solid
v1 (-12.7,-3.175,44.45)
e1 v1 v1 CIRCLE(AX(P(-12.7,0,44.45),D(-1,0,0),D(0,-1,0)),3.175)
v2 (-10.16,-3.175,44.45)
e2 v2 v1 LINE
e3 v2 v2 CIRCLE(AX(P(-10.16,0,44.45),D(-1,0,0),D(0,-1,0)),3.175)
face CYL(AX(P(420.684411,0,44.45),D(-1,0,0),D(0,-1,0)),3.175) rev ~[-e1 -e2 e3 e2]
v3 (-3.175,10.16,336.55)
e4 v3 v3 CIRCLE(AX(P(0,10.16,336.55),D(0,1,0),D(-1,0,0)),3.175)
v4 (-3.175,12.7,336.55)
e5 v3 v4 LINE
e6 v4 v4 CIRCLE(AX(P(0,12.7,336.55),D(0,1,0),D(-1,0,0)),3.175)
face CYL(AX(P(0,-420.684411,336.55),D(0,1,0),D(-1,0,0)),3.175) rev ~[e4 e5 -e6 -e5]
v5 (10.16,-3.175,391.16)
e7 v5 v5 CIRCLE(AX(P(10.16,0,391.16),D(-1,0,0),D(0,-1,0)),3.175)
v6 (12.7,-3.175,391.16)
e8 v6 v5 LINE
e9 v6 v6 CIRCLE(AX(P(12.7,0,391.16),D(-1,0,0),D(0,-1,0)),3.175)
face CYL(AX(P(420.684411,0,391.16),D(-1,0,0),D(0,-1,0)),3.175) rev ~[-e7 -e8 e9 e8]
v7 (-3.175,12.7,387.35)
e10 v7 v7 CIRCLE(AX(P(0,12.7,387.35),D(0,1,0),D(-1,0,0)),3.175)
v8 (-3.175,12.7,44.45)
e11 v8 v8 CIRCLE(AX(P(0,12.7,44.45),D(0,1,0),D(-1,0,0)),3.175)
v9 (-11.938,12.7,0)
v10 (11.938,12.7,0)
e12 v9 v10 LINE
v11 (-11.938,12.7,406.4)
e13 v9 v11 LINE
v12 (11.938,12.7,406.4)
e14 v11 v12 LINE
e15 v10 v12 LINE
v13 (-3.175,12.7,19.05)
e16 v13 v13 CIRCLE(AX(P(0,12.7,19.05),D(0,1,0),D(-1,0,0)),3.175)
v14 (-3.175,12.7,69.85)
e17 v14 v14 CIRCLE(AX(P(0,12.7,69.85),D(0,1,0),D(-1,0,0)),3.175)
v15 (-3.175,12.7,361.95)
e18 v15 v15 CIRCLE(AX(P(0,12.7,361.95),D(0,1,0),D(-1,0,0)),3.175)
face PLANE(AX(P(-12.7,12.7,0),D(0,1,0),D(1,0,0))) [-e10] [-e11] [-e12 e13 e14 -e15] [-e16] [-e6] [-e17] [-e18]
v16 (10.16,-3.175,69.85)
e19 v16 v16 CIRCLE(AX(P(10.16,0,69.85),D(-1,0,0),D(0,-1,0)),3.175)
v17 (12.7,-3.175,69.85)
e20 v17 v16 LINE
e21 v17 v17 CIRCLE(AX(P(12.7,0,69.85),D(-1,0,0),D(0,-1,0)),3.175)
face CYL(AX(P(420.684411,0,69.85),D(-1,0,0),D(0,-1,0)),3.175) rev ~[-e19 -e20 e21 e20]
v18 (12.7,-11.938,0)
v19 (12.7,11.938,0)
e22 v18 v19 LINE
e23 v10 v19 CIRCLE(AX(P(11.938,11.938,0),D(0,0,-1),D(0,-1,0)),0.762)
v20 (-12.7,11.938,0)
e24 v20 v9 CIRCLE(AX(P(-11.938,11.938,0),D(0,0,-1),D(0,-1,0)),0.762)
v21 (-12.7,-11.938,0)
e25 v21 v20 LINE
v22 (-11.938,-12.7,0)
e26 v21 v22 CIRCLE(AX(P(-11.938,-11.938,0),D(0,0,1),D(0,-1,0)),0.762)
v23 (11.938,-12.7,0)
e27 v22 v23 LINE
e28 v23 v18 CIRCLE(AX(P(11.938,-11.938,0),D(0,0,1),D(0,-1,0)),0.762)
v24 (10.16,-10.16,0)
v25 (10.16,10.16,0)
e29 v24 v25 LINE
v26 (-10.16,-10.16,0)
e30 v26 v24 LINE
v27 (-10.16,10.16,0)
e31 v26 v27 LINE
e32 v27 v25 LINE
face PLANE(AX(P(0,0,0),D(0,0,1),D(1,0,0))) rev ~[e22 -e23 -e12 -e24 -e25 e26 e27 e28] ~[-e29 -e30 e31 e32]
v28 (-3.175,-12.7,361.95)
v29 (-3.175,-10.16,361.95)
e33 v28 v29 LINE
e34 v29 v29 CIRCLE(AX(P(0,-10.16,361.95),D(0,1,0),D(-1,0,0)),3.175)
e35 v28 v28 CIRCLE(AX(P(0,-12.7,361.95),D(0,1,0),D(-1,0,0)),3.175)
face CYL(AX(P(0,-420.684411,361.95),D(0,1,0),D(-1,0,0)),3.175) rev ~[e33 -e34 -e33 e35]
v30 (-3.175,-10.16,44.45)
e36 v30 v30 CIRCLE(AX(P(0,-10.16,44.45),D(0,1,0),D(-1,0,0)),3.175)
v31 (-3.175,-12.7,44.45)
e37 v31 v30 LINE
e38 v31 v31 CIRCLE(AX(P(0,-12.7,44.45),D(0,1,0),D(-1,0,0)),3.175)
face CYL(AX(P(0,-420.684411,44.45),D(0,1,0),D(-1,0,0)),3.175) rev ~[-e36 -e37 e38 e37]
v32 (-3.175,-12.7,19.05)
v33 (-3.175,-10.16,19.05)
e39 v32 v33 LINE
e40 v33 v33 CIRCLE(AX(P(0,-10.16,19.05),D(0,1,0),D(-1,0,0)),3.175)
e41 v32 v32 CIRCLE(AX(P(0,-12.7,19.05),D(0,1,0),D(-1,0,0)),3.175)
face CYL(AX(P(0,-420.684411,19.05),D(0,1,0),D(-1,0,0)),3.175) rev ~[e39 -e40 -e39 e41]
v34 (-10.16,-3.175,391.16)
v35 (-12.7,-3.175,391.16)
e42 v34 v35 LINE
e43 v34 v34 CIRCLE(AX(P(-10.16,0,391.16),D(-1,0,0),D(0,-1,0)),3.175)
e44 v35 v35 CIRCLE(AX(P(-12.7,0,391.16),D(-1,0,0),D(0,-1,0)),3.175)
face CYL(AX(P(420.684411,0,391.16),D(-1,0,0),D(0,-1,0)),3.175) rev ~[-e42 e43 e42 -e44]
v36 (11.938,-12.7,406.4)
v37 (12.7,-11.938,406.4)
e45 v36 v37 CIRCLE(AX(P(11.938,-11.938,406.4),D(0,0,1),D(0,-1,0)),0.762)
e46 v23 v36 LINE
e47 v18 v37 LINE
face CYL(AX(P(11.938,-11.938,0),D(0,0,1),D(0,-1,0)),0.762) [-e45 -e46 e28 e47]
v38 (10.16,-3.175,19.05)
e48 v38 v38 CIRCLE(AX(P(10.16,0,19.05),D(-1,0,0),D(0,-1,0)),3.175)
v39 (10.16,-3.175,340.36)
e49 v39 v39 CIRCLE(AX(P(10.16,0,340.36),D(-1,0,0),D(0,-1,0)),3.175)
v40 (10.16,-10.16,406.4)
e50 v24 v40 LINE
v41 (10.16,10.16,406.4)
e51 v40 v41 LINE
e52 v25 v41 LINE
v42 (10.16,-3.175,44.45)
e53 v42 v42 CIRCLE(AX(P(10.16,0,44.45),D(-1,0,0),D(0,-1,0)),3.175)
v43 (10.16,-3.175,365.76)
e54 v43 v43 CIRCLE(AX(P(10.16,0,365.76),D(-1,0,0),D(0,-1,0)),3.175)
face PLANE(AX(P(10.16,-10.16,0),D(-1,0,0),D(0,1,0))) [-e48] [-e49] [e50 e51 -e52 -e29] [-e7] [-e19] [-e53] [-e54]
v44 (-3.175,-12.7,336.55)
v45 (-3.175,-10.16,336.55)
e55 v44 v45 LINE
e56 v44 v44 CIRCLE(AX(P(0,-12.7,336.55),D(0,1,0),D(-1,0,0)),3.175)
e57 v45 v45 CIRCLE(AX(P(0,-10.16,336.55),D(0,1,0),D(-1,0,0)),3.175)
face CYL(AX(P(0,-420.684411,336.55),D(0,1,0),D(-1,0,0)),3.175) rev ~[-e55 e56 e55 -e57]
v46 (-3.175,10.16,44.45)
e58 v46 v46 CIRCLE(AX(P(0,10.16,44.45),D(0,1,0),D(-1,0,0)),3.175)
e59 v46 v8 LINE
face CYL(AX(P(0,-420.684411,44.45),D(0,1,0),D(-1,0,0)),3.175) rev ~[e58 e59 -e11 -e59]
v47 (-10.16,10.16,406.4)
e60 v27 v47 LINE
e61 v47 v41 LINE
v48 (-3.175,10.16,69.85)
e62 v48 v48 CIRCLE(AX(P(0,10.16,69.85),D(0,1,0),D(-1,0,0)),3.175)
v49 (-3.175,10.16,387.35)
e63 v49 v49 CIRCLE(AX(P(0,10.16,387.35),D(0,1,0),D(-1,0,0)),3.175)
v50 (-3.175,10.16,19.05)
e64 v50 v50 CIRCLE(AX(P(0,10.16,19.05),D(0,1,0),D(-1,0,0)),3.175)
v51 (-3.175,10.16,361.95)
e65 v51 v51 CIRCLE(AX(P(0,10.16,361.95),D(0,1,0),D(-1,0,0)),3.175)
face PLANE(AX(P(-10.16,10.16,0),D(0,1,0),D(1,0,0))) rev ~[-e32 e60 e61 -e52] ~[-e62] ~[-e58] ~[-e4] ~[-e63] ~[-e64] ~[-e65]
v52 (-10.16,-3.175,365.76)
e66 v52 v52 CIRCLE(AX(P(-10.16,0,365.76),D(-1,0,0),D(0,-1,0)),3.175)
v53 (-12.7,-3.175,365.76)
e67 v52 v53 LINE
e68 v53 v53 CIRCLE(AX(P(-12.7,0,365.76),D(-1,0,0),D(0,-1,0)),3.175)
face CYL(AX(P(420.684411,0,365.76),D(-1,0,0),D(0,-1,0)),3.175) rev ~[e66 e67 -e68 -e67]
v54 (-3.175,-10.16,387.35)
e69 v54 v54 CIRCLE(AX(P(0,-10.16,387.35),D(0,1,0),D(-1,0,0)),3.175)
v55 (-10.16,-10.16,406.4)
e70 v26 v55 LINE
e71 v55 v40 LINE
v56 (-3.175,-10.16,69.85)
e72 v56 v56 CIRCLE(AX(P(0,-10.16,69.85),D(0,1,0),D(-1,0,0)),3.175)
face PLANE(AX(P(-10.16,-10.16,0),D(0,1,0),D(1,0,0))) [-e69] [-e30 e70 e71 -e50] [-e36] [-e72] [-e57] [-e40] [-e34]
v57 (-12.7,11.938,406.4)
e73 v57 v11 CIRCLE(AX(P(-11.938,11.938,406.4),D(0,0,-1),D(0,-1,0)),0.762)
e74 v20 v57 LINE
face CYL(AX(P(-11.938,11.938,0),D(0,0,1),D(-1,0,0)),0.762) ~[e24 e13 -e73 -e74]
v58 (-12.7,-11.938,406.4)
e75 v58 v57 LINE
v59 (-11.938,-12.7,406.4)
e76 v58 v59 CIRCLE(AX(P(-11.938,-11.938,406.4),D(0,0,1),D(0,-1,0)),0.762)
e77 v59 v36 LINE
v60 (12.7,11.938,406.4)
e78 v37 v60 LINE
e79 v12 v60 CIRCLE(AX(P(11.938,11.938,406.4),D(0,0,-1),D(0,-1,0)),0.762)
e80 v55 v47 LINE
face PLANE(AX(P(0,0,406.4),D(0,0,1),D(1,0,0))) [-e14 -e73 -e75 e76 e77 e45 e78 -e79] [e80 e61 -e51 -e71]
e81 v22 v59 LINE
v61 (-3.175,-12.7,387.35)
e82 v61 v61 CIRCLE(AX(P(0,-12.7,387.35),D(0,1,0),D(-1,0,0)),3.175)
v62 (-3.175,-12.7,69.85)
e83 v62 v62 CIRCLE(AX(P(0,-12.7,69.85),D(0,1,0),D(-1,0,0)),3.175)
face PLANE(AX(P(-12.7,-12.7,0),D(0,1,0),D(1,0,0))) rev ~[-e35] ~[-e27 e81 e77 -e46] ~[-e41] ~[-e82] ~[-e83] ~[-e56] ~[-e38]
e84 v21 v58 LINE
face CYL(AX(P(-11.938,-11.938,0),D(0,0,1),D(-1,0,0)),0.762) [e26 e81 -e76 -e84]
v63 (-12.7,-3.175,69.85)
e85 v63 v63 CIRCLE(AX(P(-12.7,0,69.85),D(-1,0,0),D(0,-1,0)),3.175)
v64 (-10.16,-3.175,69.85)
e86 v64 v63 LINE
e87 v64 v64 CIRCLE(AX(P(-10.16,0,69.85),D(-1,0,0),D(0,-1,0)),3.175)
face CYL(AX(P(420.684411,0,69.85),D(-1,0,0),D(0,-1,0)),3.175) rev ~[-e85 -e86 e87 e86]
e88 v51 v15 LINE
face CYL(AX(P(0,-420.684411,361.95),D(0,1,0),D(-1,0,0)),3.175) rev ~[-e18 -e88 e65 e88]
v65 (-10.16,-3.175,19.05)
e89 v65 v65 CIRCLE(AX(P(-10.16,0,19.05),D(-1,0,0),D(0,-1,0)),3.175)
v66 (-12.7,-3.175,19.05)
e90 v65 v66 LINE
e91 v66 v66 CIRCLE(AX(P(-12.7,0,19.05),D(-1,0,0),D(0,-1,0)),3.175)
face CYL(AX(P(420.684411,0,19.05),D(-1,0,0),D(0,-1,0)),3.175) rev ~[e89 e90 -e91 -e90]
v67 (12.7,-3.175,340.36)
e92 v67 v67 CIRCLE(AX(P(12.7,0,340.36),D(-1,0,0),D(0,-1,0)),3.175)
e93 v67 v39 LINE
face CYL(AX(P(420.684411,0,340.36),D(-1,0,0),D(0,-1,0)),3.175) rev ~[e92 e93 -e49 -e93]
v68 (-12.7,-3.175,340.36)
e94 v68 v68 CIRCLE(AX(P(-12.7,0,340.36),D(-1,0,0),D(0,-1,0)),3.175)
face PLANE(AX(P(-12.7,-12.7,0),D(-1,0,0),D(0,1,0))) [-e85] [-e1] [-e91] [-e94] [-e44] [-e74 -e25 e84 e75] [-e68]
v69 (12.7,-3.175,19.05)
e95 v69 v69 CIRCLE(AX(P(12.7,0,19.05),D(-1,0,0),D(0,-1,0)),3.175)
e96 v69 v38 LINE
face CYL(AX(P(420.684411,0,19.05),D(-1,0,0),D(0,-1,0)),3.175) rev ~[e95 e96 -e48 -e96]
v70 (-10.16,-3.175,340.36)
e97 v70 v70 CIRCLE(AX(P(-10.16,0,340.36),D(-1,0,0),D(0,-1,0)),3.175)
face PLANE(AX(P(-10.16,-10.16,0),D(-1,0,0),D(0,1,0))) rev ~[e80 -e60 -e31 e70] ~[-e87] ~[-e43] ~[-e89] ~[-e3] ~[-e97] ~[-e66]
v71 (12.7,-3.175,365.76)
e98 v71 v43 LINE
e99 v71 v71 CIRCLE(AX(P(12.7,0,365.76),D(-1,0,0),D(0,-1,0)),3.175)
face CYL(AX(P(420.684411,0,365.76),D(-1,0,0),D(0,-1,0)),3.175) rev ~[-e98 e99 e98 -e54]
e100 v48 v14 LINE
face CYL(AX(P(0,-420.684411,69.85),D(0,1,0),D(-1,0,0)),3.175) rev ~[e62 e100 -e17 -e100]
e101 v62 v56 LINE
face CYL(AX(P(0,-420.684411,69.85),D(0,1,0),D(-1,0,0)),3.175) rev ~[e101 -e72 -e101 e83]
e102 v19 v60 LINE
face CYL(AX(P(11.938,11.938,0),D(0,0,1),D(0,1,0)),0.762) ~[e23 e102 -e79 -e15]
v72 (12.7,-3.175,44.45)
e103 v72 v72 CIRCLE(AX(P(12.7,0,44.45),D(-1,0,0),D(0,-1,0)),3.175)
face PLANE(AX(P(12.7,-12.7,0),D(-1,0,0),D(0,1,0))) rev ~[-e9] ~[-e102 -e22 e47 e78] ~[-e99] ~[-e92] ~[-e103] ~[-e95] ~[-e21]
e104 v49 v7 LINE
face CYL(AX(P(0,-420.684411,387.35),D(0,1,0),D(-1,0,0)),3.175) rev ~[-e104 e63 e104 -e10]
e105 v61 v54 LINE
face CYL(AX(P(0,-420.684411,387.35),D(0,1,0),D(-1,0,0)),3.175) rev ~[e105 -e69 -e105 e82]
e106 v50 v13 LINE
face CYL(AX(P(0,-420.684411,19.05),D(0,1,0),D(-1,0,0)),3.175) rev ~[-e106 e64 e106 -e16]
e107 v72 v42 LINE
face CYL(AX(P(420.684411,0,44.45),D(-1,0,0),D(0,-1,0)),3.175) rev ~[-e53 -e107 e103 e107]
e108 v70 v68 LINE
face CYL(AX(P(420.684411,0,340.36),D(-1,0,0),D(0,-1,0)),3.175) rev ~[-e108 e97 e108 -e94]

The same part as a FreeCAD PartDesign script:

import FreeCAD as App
import Part
import Sketcher
Q = App.Units.Quantity


def edges_at(feature, points):
    """Names of the edges that pass closest to the given points."""
    edges = feature.Shape.Edges
    near = lambda p: min(range(len(edges)), key=lambda i: edges[i].distToShape(Part.Vertex(*p))[0])
    return sorted({f"Edge{near(p) + 1}" for p in points})


def add_polygon(sketch, points):
    """Adds a closed chain of lines whose ends are joined by coincident constraints."""
    first, n = sketch.GeometryCount, len(points)
    for a, b in zip(points, points[1:] + points[:1]):
        sketch.addGeometry(Part.LineSegment(App.Vector(*a, 0), App.Vector(*b, 0)), False)
    for i in range(n):
        sketch.addConstraint(Sketcher.Constraint("Coincident", first + i, 2, first + (i + 1) % n, 1))

doc = App.newDocument("Part")
body = doc.addObject("PartDesign::Body", "Body")

# Sketch on XY plane
sketch1 = body.newObject("Sketcher::SketchObject", "Sketch")
sketch1.AttachmentSupport = (doc.getObject("XY_Plane"), [""])
sketch1.MapMode = "FlatFace"
add_polygon(sketch1, [(-13, 13), (-13, -13), (13, -13), (13, 13)])  # lines 0-3
add_polygon(sketch1, [(10, -10), (-10, -10), (-10, 10), (10, 10)])  # lines 4-7
sketch1.addConstraint(Sketcher.Constraint("Vertical", 0))
sketch1.addConstraint(Sketcher.Constraint("Horizontal", 1))
sketch1.addConstraint(Sketcher.Constraint("Vertical", 2))
sketch1.addConstraint(Sketcher.Constraint("Horizontal", 3))
sketch1.addConstraint(Sketcher.Constraint("Horizontal", 4))
sketch1.addConstraint(Sketcher.Constraint("Vertical", 5))
sketch1.addConstraint(Sketcher.Constraint("Horizontal", 6))
sketch1.addConstraint(Sketcher.Constraint("Vertical", 7))
sketch1.addConstraint(Sketcher.Constraint("Symmetric", 0, 2, 2, 2, -1, 1))
sketch1.addConstraint(Sketcher.Constraint("Symmetric", 4, 2, 6, 2, -1, 1))
sketch1.addConstraint(Sketcher.Constraint("Equal", 3, 0))
sketch1.addConstraint(Sketcher.Constraint("Equal", 6, 5))
sketch1.addConstraint(Sketcher.Constraint("DistanceX", 1, 1, 1, 2, Q("1 in")))
sketch1.addConstraint(Sketcher.Constraint("DistanceX", 4, 2, 4, 1, Q("0.8 in")))
pad1 = body.newObject("PartDesign::Pad", "Pad")
pad1.Profile = sketch1
pad1.Length = Q("16 in")
doc.recompute()

fillet = body.newObject("PartDesign::Fillet", "Fillet")
fillet.Base = (pad1, edges_at(pad1, [
    (12.7, 12.7, 203.2),
    (-12.7, 12.7, 203.2),
    (-12.7, -12.7, 203.2),
    (12.7, -12.7, 203.2),
]))
fillet.Radius = Q("0.03 in")

# Sketch on YZ plane
sketch2 = body.newObject("Sketcher::SketchObject", "Sketch001")
sketch2.AttachmentSupport = (doc.getObject("YZ_Plane"), [""])
sketch2.MapMode = "FlatFace"
sketch2.AttachmentOffset = App.Placement(App.Vector(0, 0, 0.5 * 25.4), App.Rotation())
sketch2.addGeometry(Part.Circle(App.Vector(0, 391.2, 0), App.Vector(0, 0, 1), 3.2), False)
sketch2.addGeometry(Part.Circle(App.Vector(0, 365.8, 0), App.Vector(0, 0, 1), 3.2), False)
sketch2.addGeometry(Part.Circle(App.Vector(0, 340.4, 0), App.Vector(0, 0, 1), 3.2), False)
sketch2.addGeometry(Part.Circle(App.Vector(0, 69.8, 0), App.Vector(0, 0, 1), 3.2), False)
sketch2.addGeometry(Part.Circle(App.Vector(0, 44.5, 0), App.Vector(0, 0, 1), 3.2), False)
sketch2.addGeometry(Part.Circle(App.Vector(0, 19.1, 0), App.Vector(0, 0, 1), 3.2), False)
sketch2.addConstraint(Sketcher.Constraint("Equal", 0, 1))
sketch2.addConstraint(Sketcher.Constraint("Equal", 1, 2))
sketch2.addConstraint(Sketcher.Constraint("Equal", 2, 3))
sketch2.addConstraint(Sketcher.Constraint("Equal", 3, 4))
sketch2.addConstraint(Sketcher.Constraint("Equal", 4, 5))
sketch2.addConstraint(Sketcher.Constraint("PointOnObject", 0, 3, -2))
sketch2.addConstraint(Sketcher.Constraint("PointOnObject", 1, 3, -2))
sketch2.addConstraint(Sketcher.Constraint("PointOnObject", 2, 3, -2))
sketch2.addConstraint(Sketcher.Constraint("PointOnObject", 3, 3, -2))
sketch2.addConstraint(Sketcher.Constraint("PointOnObject", 4, 3, -2))
sketch2.addConstraint(Sketcher.Constraint("PointOnObject", 5, 3, -2))
sketch2.addConstraint(Sketcher.Constraint("Diameter", 0, Q("0.25 in")))
sketch2.addConstraint(Sketcher.Constraint("DistanceY", 1, 3, 0, 3, Q("1 in")))
sketch2.addConstraint(Sketcher.Constraint("DistanceY", 2, 3, 1, 3, Q("1 in")))
sketch2.addConstraint(Sketcher.Constraint("DistanceY", 4, 3, 3, 3, Q("1 in")))
sketch2.addConstraint(Sketcher.Constraint("DistanceY", 5, 3, 4, 3, Q("1 in")))
sketch2.addConstraint(Sketcher.Constraint("DistanceY", -1, 1, 0, 3, Q("15.4 in")))
sketch2.addConstraint(Sketcher.Constraint("DistanceY", -1, 1, 3, 3, Q("2.75 in")))
doc.recompute()
hole = body.newObject("PartDesign::Hole", "Hole")
hole.Profile = sketch2
hole.ThreadType = "None"
hole.Diameter = Q("0.25 in")
hole.DepthType = "ThroughAll"

# Sketch on XZ plane
sketch3 = body.newObject("Sketcher::SketchObject", "Sketch002")
sketch3.AttachmentSupport = (doc.getObject("XZ_Plane"), [""])
sketch3.MapMode = "FlatFace"
sketch3.AttachmentOffset = App.Placement(App.Vector(0, 0, 0.5 * 25.4), App.Rotation())
sketch3.addGeometry(Part.Circle(App.Vector(0, 19.1, 0), App.Vector(0, 0, 1), 3.2), False)
sketch3.addGeometry(Part.Circle(App.Vector(0, 44.5, 0), App.Vector(0, 0, 1), 3.2), False)
sketch3.addGeometry(Part.Circle(App.Vector(0, 69.8, 0), App.Vector(0, 0, 1), 3.2), False)
sketch3.addGeometry(Part.Circle(App.Vector(0, 336.6, 0), App.Vector(0, 0, 1), 3.2), False)
sketch3.addGeometry(Part.Circle(App.Vector(0, 361.9, 0), App.Vector(0, 0, 1), 3.2), False)
sketch3.addGeometry(Part.Circle(App.Vector(0, 387.4, 0), App.Vector(0, 0, 1), 3.2), False)
sketch3.addConstraint(Sketcher.Constraint("Equal", 0, 1))
sketch3.addConstraint(Sketcher.Constraint("Equal", 1, 2))
sketch3.addConstraint(Sketcher.Constraint("Equal", 2, 3))
sketch3.addConstraint(Sketcher.Constraint("Equal", 3, 4))
sketch3.addConstraint(Sketcher.Constraint("Equal", 4, 5))
sketch3.addConstraint(Sketcher.Constraint("PointOnObject", 0, 3, -2))
sketch3.addConstraint(Sketcher.Constraint("PointOnObject", 1, 3, -2))
sketch3.addConstraint(Sketcher.Constraint("PointOnObject", 2, 3, -2))
sketch3.addConstraint(Sketcher.Constraint("PointOnObject", 3, 3, -2))
sketch3.addConstraint(Sketcher.Constraint("PointOnObject", 4, 3, -2))
sketch3.addConstraint(Sketcher.Constraint("PointOnObject", 5, 3, -2))
sketch3.addConstraint(Sketcher.Constraint("Diameter", 0, Q("0.25 in")))
sketch3.addConstraint(Sketcher.Constraint("DistanceY", 0, 3, 1, 3, Q("1 in")))
sketch3.addConstraint(Sketcher.Constraint("DistanceY", 1, 3, 2, 3, Q("1 in")))
sketch3.addConstraint(Sketcher.Constraint("DistanceY", 3, 3, 4, 3, Q("1 in")))
sketch3.addConstraint(Sketcher.Constraint("DistanceY", 4, 3, 5, 3, Q("1 in")))
sketch3.addConstraint(Sketcher.Constraint("DistanceY", 2, 3, 3, 3, Q("10.5 in")))
sketch3.addConstraint(Sketcher.Constraint("DistanceY", -1, 1, 0, 3, Q("0.75 in")))
doc.recompute()
hole2 = body.newObject("PartDesign::Hole", "Hole001")
hole2.Profile = sketch3
hole2.ThreadType = "None"
hole2.Diameter = Q("0.25 in")
hole2.DepthType = "ThroughAll"

doc.recompute()
